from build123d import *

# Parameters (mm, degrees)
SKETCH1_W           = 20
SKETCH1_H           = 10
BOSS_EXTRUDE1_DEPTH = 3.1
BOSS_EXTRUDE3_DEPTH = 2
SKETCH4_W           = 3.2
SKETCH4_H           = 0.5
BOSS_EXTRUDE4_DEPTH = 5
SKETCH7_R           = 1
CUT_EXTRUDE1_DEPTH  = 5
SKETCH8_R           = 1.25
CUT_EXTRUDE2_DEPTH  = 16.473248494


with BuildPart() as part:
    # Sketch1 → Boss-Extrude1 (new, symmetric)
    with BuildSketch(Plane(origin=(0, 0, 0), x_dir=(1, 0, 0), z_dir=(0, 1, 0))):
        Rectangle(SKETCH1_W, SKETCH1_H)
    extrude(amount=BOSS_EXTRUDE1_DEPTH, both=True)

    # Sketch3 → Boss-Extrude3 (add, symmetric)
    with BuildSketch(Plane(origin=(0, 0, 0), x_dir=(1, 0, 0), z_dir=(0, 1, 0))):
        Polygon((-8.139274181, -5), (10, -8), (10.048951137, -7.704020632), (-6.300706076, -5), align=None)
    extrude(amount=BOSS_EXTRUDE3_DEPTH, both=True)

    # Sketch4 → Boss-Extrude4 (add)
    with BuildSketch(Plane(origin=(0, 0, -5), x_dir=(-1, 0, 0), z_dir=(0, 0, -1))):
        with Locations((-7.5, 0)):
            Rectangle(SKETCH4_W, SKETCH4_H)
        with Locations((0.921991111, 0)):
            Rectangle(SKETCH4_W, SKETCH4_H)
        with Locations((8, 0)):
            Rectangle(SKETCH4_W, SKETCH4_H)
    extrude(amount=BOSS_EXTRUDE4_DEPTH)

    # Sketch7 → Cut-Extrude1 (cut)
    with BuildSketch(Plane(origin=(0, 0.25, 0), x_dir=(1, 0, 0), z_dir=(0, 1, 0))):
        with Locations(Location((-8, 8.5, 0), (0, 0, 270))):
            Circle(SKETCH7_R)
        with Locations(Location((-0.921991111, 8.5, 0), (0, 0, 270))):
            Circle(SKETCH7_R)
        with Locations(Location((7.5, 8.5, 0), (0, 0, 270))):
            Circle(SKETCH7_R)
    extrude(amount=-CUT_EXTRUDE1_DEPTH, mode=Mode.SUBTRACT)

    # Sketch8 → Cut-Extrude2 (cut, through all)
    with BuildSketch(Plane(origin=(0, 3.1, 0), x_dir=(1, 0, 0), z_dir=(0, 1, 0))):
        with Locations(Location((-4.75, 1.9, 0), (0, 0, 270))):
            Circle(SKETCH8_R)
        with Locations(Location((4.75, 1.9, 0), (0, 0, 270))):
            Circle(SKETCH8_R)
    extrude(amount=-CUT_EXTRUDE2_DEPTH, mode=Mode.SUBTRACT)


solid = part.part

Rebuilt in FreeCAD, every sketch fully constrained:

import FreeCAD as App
import Part
import Sketcher

V = App.Vector
Q = App.Units.Quantity


def add_polygon(sketch, points):
    """Adds a closed chain of lines whose ends are joined by coincident constraints."""
    first, n = sketch.GeometryCount, len(points)
    for a, b in zip(points, points[1:] + points[:1]):
        sketch.addGeometry(Part.LineSegment(App.Vector(*a, 0), App.Vector(*b, 0)), False)
    for i in range(n):
        sketch.addConstraint(Sketcher.Constraint("Coincident", first + i, 2, first + (i + 1) % n, 1))

doc = App.newDocument("Part")
body = doc.addObject("PartDesign::Body", "Body")

sketch1 = body.newObject("Sketcher::SketchObject", "Sketch")
sketch1.AttachmentSupport = (doc.getObject("XZ_Plane"), [""])
sketch1.MapMode = "FlatFace"
add_polygon(sketch1, [(-10, -5), (-10, 5), (10, 5), (10, -5)])
sketch1.addConstraint([
    Sketcher.Constraint("Vertical", 0),
    Sketcher.Constraint("Horizontal", 1),
    Sketcher.Constraint("Vertical", 2),
    Sketcher.Constraint("Horizontal", 3),
    Sketcher.Constraint("Symmetric", 0, 2, 2, 2, -1, 1),
    Sketcher.Constraint("DistanceX", 1, 1, 1, 2, Q("20 mm")),
    Sketcher.Constraint("DistanceY", 0, 1, 0, 2, Q("10 mm")),
])
pad1 = body.newObject("PartDesign::Pad", "Pad")
pad1.Profile = sketch1
pad1.Length = 6.2
pad1.Midplane = True

sketch2 = body.newObject("Sketcher::SketchObject", "Sketch001")
sketch2.AttachmentSupport = (doc.getObject("XZ_Plane"), [""])
sketch2.MapMode = "FlatFace"
add_polygon(sketch2, [(-8.14, 5), (10, 8), (10.05, 7.7), (-6.3, 5)])
sketch2.addConstraint([
    Sketcher.Constraint("Horizontal", 3),
    Sketcher.Constraint("Perpendicular", 0, 1),
    Sketcher.Constraint("Perpendicular", 1, 2),
    Sketcher.Constraint("DistanceX", -1, 1, 0, 2, Q("10 mm")),
    Sketcher.Constraint("DistanceY", -1, 1, 0, 2, Q("8 mm")),
    Sketcher.Constraint("DistanceY", -1, 1, 2, 2, Q("5 mm")),
    Sketcher.Constraint("Distance", 1, Q("0.3 mm")),
    Sketcher.Constraint("DistanceX", 3, 2, 3, 1, Q("1.838568 mm")),
])
pad2 = body.newObject("PartDesign::Pad", "Pad001")
pad2.Profile = sketch2
pad2.Length = 4
pad2.Midplane = True

sketch3 = body.newObject("Sketcher::SketchObject", "Sketch002")
sketch3.AttachmentSupport = (doc.getObject("XY_Plane"), [""])
sketch3.MapMode = "FlatFace"
sketch3.AttachmentOffset = App.Placement(V(0, 0, -5), App.Rotation())
add_polygon(sketch3, [(9.1, 0.2), (9.1, -0.2), (5.9, -0.2), (5.9, 0.2)])
add_polygon(sketch3, [(0.7, 0.2), (0.7, -0.2), (-2.5, -0.2), (-2.5, 0.2)])
add_polygon(sketch3, [(-6.4, 0.2), (-6.4, -0.2), (-9.6, -0.2), (-9.6, 0.2)])
sketch3.addConstraint([
    Sketcher.Constraint("Vertical", 0),
    Sketcher.Constraint("Horizontal", 1),
    Sketcher.Constraint("Vertical", 2),
    Sketcher.Constraint("Horizontal", 3),
    Sketcher.Constraint("Vertical", 4),
    Sketcher.Constraint("Horizontal", 5),
    Sketcher.Constraint("Vertical", 6),
    Sketcher.Constraint("Horizontal", 7),
    Sketcher.Constraint("Vertical", 8),
    Sketcher.Constraint("Horizontal", 9),
    Sketcher.Constraint("Vertical", 10),
    Sketcher.Constraint("Horizontal", 11),
    Sketcher.Constraint("Horizontal", 1, 2, 4, 2),
    Sketcher.Constraint("Horizontal", 3, 2, 6, 2),
    Sketcher.Constraint("Horizontal", 5, 2, 8, 2),
    Sketcher.Constraint("Horizontal", 7, 2, 10, 2),
    Sketcher.Constraint("Equal", 3, 5),
    Sketcher.Constraint("Equal", 7, 9),
    Sketcher.Constraint("DistanceX", 1, 2, 1, 1, Q("3.2 mm")),
    Sketcher.Constraint("DistanceY", 0, 2, 0, 1, Q("0.5 mm")),
    Sketcher.Constraint("DistanceX", -1, 1, 0, 2, Q("9.1 mm")),
    Sketcher.Constraint("DistanceX", 8, 2, -1, 1, Q("6.4 mm")),
    Sketcher.Constraint("DistanceY", 0, 2, -1, 1, Q("0.25 mm")),
    Sketcher.Constraint("DistanceX", -1, 1, 4, 2, Q("0.678009 mm")),
])
pad3 = body.newObject("PartDesign::Pad", "Pad002")
pad3.Profile = sketch3
pad3.Length = 5
pad3.Reversed = True

sketch4 = body.newObject("Sketcher::SketchObject", "Sketch003")
sketch4.AttachmentSupport = (doc.getObject("XZ_Plane"), [""])
sketch4.MapMode = "FlatFace"
sketch4.AttachmentOffset = App.Placement(V(0, 0, -0.25), App.Rotation())
sketch4.addGeometry([
    Part.Circle(V(-8, -8.5, 0), V(0, 0, 1), 1),
    Part.Circle(V(-0.9, -8.5, 0), V(0, 0, 1), 1),
    Part.Circle(V(7.5, -8.5, 0), V(0, 0, 1), 1),
], False)
sketch4.addConstraint([
    Sketcher.Constraint("Equal", 0, 1),
    Sketcher.Constraint("Equal", 1, 2),
    Sketcher.Constraint("Horizontal", 0, 3, 1, 3),
    Sketcher.Constraint("Horizontal", 1, 3, 2, 3),
    Sketcher.Constraint("Diameter", 0, Q("2 mm")),
    Sketcher.Constraint("DistanceX", 0, 3, -1, 1, Q("8 mm")),
    Sketcher.Constraint("DistanceY", 0, 3, -1, 1, Q("8.5 mm")),
    Sketcher.Constraint("DistanceX", -1, 1, 2, 3, Q("7.5 mm")),
    Sketcher.Constraint("DistanceX", 1, 3, -1, 1, Q("0.921991 mm")),
])
pocket1 = body.newObject("PartDesign::Pocket", "Pocket")
pocket1.Profile = sketch4
pocket1.Length = 5
pocket1.Reversed = True

sketch5 = body.newObject("Sketcher::SketchObject", "Sketch004")
sketch5.AttachmentSupport = (doc.getObject("XZ_Plane"), [""])
sketch5.MapMode = "FlatFace"
sketch5.AttachmentOffset = App.Placement(V(0, 0, -3.1), App.Rotation())
sketch5.addGeometry([
    Part.Circle(V(-4.8, -1.9, 0), V(0, 0, 1), 1.2),
    Part.Circle(V(4.8, -1.9, 0), V(0, 0, 1), 1.2),
], False)
sketch5.addConstraint([
    Sketcher.Constraint("Equal", 0, 1),
    Sketcher.Constraint("Symmetric", 0, 3, 1, 3, -2),
    Sketcher.Constraint("Diameter", 0, Q("2.5 mm")),
    Sketcher.Constraint("DistanceY", 0, 3, -1, 1, Q("1.9 mm")),
    Sketcher.Constraint("DistanceX", 0, 3, 1, 3, Q("9.5 mm")),
])
pocket2 = body.newObject("PartDesign::Pocket", "Pocket001")
pocket2.Profile = sketch5
pocket2.Type = "ThroughAll"
pocket2.Reversed = True

doc.recompute()
